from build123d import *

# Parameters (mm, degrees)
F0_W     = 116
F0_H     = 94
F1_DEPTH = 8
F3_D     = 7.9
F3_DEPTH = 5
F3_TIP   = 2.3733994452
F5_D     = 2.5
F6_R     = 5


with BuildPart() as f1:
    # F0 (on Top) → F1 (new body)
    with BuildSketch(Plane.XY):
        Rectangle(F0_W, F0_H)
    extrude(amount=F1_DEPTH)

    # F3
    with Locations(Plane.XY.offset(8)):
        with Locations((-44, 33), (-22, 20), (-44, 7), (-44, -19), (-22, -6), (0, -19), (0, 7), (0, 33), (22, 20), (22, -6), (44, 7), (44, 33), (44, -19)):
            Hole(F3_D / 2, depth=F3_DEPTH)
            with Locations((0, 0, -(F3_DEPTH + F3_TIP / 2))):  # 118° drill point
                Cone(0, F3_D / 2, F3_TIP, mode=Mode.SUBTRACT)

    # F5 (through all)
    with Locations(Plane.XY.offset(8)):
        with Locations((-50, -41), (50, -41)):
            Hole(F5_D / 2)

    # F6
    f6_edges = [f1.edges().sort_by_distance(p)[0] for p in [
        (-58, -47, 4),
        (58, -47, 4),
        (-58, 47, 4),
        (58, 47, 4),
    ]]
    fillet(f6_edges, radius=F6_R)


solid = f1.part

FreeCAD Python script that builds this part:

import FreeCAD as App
import Part
import Sketcher
from FreeCAD import Vector


def edges_at(feature, points):
    """Names of the edges that pass closest to the given points."""
    edges = feature.Shape.Edges
    near = lambda p: min(range(len(edges)), key=lambda i: edges[i].distToShape(Part.Vertex(*p))[0])
    return sorted({f"Edge{near(p) + 1}" for p in points})


def add_polygon(sketch, points):
    """Adds a closed chain of lines whose ends are joined by coincident constraints."""
    first, n = sketch.GeometryCount, len(points)
    for a, b in zip(points, points[1:] + points[:1]):
        sketch.addGeometry(Part.LineSegment(App.Vector(*a, 0), App.Vector(*b, 0)), False)
    for i in range(n):
        sketch.addConstraint(Sketcher.Constraint("Coincident", first + i, 2, first + (i + 1) % n, 1))

doc = App.newDocument("Part")
body = doc.addObject("PartDesign::Body", "Body")

# Sketch on XY plane
sketch1 = doc.addObject("Sketcher::SketchObject", "Sketch")
body.addObject(sketch1)
sketch1.AttachmentSupport = (doc.XY_Plane, [""])
sketch1.MapMode = "FlatFace"
add_polygon(sketch1, [(-58, 47), (-58, -47), (58, -47), (58, 47)])  # lines 0-3
sketch1.addConstraint([
    Sketcher.Constraint("Vertical", 0),
    Sketcher.Constraint("Horizontal", 1),
    Sketcher.Constraint("Vertical", 2),
    Sketcher.Constraint("Horizontal", 3),
    Sketcher.Constraint("Symmetric", 0, 2, 2, 2, -1, 1),
    Sketcher.Constraint("DistanceX", 1, 1, 1, 2, 116.0),
    Sketcher.Constraint("DistanceY", 0, 2, 0, 1, 94.0),
])
pad1 = doc.addObject("PartDesign::Pad", "Pad")
body.addObject(pad1)
pad1.Profile = sketch1
pad1.Length = 8

# Sketch on XY plane
sketch2 = doc.addObject("Sketcher::SketchObject", "Sketch001")
body.addObject(sketch2)
sketch2.AttachmentSupport = (doc.XY_Plane, [""])
sketch2.MapMode = "FlatFace"
sketch2.AttachmentOffset = App.Placement(Vector(0, 0, 8), App.Rotation())
sketch2.addGeometry([
    Part.Circle(Vector(-44, 33, 0), Vector(0, 0, 1), 4),  # 0
    Part.Circle(Vector(-22, 20, 0), Vector(0, 0, 1), 4),  # 1
    Part.Circle(Vector(-44, 7, 0), Vector(0, 0, 1), 4),  # 2
    Part.Circle(Vector(-44, -19, 0), Vector(0, 0, 1), 4),  # 3
    Part.Circle(Vector(-22, -6, 0), Vector(0, 0, 1), 4),  # 4
    Part.Circle(Vector(0, -19, 0), Vector(0, 0, 1), 4),  # 5
    Part.Circle(Vector(0, 7, 0), Vector(0, 0, 1), 4),  # 6
    Part.Circle(Vector(0, 33, 0), Vector(0, 0, 1), 4),  # 7
    Part.Circle(Vector(22, 20, 0), Vector(0, 0, 1), 4),  # 8
    Part.Circle(Vector(22, -6, 0), Vector(0, 0, 1), 4),  # 9
    Part.Circle(Vector(44, 7, 0), Vector(0, 0, 1), 4),  # 10
    Part.Circle(Vector(44, 33, 0), Vector(0, 0, 1), 4),  # 11
    Part.Circle(Vector(44, -19, 0), Vector(0, 0, 1), 4),  # 12
], False)
sketch2.addConstraint([
    Sketcher.Constraint("Equal", 0, 1),
    Sketcher.Constraint("Equal", 1, 2),
    Sketcher.Constraint("Equal", 2, 3),
    Sketcher.Constraint("Equal", 3, 4),
    Sketcher.Constraint("Equal", 4, 5),
    Sketcher.Constraint("Equal", 5, 6),
    Sketcher.Constraint("Equal", 6, 7),
    Sketcher.Constraint("Equal", 7, 8),
    Sketcher.Constraint("Equal", 8, 9),
    Sketcher.Constraint("Equal", 9, 10),
    Sketcher.Constraint("Equal", 10, 11),
    Sketcher.Constraint("Equal", 11, 12),
    Sketcher.Constraint("Symmetric", 1, 3, 8, 3, -2),
    Sketcher.Constraint("Symmetric", 4, 3, 9, 3, -2),
    Sketcher.Constraint("Symmetric", 2, 3, 10, 3, -2),
    Sketcher.Constraint("Symmetric", 0, 3, 11, 3, -2),
    Sketcher.Constraint("Symmetric", 3, 3, 12, 3, -2),
    Sketcher.Constraint("PointOnObject", 5, 3, -2),
    Sketcher.Constraint("PointOnObject", 6, 3, -2),
    Sketcher.Constraint("PointOnObject", 7, 3, -2),
    Sketcher.Constraint("Horizontal", 3, 3, 5, 3),
    Sketcher.Constraint("Horizontal", 2, 3, 6, 3),
    Sketcher.Constraint("Horizontal", 0, 3, 7, 3),
    Sketcher.Constraint("Vertical", 0, 3, 2, 3),
    Sketcher.Constraint("Vertical", 2, 3, 3, 3),
    Sketcher.Constraint("Vertical", 1, 3, 4, 3),
    Sketcher.Constraint("Diameter", 0, 7.9),
    Sketcher.Constraint("DistanceX", 0, 3, -1, 1, 44.0),
    Sketcher.Constraint("DistanceY", -1, 1, 0, 3, 33.0),
    Sketcher.Constraint("DistanceX", 1, 3, -1, 1, 22.0),
    Sketcher.Constraint("DistanceY", -1, 1, 1, 3, 20.0),
    Sketcher.Constraint("DistanceY", -1, 1, 2, 3, 7.0),
    Sketcher.Constraint("DistanceY", 3, 3, -1, 1, 19.0),
    Sketcher.Constraint("DistanceY", 4, 3, -1, 1, 6.0),
])
doc.recompute()
hole = doc.addObject("PartDesign::Hole", "Hole")
body.addObject(hole)
hole.Profile = sketch2
hole.ThreadType = "None"
hole.Diameter = 7.9
hole.DepthType = "Dimension"
hole.Depth = 5
hole.DrillPoint = "Angled"
hole.DrillPointAngle = 118

# Sketch on XY plane
sketch3 = doc.addObject("Sketcher::SketchObject", "Sketch002")
body.addObject(sketch3)
sketch3.AttachmentSupport = (doc.XY_Plane, [""])
sketch3.MapMode = "FlatFace"
sketch3.AttachmentOffset = App.Placement(Vector(0, 0, 8), App.Rotation())
sketch3.addGeometry([
    Part.Circle(Vector(-50, -41, 0), Vector(0, 0, 1), 1.2),
    Part.Circle(Vector(50, -41, 0), Vector(0, 0, 1), 1.2),
], False)
sketch3.addConstraint([
    Sketcher.Constraint("Equal", 0, 1),
    Sketcher.Constraint("Symmetric", 0, 3, 1, 3, -2),
    Sketcher.Constraint("Diameter", 0, 2.5),
    Sketcher.Constraint("DistanceX", 0, 3, -1, 1, 50.0),
    Sketcher.Constraint("DistanceY", 0, 3, -1, 1, 41.0),
])
doc.recompute()
hole2 = doc.addObject("PartDesign::Hole", "Hole001")
body.addObject(hole2)
hole2.Profile = sketch3
hole2.ThreadType = "None"
hole2.Diameter = 2.5
hole2.DepthType = "ThroughAll"
doc.recompute()

fillet = doc.addObject("PartDesign::Fillet", "Fillet")
body.addObject(fillet)
fillet.Base = (hole2, edges_at(hole2, [
    (-58, -47, 4),
    (58, -47, 4),
    (-58, 47, 4),
    (58, 47, 4),
]))
fillet.Radius = 5

doc.recompute()
